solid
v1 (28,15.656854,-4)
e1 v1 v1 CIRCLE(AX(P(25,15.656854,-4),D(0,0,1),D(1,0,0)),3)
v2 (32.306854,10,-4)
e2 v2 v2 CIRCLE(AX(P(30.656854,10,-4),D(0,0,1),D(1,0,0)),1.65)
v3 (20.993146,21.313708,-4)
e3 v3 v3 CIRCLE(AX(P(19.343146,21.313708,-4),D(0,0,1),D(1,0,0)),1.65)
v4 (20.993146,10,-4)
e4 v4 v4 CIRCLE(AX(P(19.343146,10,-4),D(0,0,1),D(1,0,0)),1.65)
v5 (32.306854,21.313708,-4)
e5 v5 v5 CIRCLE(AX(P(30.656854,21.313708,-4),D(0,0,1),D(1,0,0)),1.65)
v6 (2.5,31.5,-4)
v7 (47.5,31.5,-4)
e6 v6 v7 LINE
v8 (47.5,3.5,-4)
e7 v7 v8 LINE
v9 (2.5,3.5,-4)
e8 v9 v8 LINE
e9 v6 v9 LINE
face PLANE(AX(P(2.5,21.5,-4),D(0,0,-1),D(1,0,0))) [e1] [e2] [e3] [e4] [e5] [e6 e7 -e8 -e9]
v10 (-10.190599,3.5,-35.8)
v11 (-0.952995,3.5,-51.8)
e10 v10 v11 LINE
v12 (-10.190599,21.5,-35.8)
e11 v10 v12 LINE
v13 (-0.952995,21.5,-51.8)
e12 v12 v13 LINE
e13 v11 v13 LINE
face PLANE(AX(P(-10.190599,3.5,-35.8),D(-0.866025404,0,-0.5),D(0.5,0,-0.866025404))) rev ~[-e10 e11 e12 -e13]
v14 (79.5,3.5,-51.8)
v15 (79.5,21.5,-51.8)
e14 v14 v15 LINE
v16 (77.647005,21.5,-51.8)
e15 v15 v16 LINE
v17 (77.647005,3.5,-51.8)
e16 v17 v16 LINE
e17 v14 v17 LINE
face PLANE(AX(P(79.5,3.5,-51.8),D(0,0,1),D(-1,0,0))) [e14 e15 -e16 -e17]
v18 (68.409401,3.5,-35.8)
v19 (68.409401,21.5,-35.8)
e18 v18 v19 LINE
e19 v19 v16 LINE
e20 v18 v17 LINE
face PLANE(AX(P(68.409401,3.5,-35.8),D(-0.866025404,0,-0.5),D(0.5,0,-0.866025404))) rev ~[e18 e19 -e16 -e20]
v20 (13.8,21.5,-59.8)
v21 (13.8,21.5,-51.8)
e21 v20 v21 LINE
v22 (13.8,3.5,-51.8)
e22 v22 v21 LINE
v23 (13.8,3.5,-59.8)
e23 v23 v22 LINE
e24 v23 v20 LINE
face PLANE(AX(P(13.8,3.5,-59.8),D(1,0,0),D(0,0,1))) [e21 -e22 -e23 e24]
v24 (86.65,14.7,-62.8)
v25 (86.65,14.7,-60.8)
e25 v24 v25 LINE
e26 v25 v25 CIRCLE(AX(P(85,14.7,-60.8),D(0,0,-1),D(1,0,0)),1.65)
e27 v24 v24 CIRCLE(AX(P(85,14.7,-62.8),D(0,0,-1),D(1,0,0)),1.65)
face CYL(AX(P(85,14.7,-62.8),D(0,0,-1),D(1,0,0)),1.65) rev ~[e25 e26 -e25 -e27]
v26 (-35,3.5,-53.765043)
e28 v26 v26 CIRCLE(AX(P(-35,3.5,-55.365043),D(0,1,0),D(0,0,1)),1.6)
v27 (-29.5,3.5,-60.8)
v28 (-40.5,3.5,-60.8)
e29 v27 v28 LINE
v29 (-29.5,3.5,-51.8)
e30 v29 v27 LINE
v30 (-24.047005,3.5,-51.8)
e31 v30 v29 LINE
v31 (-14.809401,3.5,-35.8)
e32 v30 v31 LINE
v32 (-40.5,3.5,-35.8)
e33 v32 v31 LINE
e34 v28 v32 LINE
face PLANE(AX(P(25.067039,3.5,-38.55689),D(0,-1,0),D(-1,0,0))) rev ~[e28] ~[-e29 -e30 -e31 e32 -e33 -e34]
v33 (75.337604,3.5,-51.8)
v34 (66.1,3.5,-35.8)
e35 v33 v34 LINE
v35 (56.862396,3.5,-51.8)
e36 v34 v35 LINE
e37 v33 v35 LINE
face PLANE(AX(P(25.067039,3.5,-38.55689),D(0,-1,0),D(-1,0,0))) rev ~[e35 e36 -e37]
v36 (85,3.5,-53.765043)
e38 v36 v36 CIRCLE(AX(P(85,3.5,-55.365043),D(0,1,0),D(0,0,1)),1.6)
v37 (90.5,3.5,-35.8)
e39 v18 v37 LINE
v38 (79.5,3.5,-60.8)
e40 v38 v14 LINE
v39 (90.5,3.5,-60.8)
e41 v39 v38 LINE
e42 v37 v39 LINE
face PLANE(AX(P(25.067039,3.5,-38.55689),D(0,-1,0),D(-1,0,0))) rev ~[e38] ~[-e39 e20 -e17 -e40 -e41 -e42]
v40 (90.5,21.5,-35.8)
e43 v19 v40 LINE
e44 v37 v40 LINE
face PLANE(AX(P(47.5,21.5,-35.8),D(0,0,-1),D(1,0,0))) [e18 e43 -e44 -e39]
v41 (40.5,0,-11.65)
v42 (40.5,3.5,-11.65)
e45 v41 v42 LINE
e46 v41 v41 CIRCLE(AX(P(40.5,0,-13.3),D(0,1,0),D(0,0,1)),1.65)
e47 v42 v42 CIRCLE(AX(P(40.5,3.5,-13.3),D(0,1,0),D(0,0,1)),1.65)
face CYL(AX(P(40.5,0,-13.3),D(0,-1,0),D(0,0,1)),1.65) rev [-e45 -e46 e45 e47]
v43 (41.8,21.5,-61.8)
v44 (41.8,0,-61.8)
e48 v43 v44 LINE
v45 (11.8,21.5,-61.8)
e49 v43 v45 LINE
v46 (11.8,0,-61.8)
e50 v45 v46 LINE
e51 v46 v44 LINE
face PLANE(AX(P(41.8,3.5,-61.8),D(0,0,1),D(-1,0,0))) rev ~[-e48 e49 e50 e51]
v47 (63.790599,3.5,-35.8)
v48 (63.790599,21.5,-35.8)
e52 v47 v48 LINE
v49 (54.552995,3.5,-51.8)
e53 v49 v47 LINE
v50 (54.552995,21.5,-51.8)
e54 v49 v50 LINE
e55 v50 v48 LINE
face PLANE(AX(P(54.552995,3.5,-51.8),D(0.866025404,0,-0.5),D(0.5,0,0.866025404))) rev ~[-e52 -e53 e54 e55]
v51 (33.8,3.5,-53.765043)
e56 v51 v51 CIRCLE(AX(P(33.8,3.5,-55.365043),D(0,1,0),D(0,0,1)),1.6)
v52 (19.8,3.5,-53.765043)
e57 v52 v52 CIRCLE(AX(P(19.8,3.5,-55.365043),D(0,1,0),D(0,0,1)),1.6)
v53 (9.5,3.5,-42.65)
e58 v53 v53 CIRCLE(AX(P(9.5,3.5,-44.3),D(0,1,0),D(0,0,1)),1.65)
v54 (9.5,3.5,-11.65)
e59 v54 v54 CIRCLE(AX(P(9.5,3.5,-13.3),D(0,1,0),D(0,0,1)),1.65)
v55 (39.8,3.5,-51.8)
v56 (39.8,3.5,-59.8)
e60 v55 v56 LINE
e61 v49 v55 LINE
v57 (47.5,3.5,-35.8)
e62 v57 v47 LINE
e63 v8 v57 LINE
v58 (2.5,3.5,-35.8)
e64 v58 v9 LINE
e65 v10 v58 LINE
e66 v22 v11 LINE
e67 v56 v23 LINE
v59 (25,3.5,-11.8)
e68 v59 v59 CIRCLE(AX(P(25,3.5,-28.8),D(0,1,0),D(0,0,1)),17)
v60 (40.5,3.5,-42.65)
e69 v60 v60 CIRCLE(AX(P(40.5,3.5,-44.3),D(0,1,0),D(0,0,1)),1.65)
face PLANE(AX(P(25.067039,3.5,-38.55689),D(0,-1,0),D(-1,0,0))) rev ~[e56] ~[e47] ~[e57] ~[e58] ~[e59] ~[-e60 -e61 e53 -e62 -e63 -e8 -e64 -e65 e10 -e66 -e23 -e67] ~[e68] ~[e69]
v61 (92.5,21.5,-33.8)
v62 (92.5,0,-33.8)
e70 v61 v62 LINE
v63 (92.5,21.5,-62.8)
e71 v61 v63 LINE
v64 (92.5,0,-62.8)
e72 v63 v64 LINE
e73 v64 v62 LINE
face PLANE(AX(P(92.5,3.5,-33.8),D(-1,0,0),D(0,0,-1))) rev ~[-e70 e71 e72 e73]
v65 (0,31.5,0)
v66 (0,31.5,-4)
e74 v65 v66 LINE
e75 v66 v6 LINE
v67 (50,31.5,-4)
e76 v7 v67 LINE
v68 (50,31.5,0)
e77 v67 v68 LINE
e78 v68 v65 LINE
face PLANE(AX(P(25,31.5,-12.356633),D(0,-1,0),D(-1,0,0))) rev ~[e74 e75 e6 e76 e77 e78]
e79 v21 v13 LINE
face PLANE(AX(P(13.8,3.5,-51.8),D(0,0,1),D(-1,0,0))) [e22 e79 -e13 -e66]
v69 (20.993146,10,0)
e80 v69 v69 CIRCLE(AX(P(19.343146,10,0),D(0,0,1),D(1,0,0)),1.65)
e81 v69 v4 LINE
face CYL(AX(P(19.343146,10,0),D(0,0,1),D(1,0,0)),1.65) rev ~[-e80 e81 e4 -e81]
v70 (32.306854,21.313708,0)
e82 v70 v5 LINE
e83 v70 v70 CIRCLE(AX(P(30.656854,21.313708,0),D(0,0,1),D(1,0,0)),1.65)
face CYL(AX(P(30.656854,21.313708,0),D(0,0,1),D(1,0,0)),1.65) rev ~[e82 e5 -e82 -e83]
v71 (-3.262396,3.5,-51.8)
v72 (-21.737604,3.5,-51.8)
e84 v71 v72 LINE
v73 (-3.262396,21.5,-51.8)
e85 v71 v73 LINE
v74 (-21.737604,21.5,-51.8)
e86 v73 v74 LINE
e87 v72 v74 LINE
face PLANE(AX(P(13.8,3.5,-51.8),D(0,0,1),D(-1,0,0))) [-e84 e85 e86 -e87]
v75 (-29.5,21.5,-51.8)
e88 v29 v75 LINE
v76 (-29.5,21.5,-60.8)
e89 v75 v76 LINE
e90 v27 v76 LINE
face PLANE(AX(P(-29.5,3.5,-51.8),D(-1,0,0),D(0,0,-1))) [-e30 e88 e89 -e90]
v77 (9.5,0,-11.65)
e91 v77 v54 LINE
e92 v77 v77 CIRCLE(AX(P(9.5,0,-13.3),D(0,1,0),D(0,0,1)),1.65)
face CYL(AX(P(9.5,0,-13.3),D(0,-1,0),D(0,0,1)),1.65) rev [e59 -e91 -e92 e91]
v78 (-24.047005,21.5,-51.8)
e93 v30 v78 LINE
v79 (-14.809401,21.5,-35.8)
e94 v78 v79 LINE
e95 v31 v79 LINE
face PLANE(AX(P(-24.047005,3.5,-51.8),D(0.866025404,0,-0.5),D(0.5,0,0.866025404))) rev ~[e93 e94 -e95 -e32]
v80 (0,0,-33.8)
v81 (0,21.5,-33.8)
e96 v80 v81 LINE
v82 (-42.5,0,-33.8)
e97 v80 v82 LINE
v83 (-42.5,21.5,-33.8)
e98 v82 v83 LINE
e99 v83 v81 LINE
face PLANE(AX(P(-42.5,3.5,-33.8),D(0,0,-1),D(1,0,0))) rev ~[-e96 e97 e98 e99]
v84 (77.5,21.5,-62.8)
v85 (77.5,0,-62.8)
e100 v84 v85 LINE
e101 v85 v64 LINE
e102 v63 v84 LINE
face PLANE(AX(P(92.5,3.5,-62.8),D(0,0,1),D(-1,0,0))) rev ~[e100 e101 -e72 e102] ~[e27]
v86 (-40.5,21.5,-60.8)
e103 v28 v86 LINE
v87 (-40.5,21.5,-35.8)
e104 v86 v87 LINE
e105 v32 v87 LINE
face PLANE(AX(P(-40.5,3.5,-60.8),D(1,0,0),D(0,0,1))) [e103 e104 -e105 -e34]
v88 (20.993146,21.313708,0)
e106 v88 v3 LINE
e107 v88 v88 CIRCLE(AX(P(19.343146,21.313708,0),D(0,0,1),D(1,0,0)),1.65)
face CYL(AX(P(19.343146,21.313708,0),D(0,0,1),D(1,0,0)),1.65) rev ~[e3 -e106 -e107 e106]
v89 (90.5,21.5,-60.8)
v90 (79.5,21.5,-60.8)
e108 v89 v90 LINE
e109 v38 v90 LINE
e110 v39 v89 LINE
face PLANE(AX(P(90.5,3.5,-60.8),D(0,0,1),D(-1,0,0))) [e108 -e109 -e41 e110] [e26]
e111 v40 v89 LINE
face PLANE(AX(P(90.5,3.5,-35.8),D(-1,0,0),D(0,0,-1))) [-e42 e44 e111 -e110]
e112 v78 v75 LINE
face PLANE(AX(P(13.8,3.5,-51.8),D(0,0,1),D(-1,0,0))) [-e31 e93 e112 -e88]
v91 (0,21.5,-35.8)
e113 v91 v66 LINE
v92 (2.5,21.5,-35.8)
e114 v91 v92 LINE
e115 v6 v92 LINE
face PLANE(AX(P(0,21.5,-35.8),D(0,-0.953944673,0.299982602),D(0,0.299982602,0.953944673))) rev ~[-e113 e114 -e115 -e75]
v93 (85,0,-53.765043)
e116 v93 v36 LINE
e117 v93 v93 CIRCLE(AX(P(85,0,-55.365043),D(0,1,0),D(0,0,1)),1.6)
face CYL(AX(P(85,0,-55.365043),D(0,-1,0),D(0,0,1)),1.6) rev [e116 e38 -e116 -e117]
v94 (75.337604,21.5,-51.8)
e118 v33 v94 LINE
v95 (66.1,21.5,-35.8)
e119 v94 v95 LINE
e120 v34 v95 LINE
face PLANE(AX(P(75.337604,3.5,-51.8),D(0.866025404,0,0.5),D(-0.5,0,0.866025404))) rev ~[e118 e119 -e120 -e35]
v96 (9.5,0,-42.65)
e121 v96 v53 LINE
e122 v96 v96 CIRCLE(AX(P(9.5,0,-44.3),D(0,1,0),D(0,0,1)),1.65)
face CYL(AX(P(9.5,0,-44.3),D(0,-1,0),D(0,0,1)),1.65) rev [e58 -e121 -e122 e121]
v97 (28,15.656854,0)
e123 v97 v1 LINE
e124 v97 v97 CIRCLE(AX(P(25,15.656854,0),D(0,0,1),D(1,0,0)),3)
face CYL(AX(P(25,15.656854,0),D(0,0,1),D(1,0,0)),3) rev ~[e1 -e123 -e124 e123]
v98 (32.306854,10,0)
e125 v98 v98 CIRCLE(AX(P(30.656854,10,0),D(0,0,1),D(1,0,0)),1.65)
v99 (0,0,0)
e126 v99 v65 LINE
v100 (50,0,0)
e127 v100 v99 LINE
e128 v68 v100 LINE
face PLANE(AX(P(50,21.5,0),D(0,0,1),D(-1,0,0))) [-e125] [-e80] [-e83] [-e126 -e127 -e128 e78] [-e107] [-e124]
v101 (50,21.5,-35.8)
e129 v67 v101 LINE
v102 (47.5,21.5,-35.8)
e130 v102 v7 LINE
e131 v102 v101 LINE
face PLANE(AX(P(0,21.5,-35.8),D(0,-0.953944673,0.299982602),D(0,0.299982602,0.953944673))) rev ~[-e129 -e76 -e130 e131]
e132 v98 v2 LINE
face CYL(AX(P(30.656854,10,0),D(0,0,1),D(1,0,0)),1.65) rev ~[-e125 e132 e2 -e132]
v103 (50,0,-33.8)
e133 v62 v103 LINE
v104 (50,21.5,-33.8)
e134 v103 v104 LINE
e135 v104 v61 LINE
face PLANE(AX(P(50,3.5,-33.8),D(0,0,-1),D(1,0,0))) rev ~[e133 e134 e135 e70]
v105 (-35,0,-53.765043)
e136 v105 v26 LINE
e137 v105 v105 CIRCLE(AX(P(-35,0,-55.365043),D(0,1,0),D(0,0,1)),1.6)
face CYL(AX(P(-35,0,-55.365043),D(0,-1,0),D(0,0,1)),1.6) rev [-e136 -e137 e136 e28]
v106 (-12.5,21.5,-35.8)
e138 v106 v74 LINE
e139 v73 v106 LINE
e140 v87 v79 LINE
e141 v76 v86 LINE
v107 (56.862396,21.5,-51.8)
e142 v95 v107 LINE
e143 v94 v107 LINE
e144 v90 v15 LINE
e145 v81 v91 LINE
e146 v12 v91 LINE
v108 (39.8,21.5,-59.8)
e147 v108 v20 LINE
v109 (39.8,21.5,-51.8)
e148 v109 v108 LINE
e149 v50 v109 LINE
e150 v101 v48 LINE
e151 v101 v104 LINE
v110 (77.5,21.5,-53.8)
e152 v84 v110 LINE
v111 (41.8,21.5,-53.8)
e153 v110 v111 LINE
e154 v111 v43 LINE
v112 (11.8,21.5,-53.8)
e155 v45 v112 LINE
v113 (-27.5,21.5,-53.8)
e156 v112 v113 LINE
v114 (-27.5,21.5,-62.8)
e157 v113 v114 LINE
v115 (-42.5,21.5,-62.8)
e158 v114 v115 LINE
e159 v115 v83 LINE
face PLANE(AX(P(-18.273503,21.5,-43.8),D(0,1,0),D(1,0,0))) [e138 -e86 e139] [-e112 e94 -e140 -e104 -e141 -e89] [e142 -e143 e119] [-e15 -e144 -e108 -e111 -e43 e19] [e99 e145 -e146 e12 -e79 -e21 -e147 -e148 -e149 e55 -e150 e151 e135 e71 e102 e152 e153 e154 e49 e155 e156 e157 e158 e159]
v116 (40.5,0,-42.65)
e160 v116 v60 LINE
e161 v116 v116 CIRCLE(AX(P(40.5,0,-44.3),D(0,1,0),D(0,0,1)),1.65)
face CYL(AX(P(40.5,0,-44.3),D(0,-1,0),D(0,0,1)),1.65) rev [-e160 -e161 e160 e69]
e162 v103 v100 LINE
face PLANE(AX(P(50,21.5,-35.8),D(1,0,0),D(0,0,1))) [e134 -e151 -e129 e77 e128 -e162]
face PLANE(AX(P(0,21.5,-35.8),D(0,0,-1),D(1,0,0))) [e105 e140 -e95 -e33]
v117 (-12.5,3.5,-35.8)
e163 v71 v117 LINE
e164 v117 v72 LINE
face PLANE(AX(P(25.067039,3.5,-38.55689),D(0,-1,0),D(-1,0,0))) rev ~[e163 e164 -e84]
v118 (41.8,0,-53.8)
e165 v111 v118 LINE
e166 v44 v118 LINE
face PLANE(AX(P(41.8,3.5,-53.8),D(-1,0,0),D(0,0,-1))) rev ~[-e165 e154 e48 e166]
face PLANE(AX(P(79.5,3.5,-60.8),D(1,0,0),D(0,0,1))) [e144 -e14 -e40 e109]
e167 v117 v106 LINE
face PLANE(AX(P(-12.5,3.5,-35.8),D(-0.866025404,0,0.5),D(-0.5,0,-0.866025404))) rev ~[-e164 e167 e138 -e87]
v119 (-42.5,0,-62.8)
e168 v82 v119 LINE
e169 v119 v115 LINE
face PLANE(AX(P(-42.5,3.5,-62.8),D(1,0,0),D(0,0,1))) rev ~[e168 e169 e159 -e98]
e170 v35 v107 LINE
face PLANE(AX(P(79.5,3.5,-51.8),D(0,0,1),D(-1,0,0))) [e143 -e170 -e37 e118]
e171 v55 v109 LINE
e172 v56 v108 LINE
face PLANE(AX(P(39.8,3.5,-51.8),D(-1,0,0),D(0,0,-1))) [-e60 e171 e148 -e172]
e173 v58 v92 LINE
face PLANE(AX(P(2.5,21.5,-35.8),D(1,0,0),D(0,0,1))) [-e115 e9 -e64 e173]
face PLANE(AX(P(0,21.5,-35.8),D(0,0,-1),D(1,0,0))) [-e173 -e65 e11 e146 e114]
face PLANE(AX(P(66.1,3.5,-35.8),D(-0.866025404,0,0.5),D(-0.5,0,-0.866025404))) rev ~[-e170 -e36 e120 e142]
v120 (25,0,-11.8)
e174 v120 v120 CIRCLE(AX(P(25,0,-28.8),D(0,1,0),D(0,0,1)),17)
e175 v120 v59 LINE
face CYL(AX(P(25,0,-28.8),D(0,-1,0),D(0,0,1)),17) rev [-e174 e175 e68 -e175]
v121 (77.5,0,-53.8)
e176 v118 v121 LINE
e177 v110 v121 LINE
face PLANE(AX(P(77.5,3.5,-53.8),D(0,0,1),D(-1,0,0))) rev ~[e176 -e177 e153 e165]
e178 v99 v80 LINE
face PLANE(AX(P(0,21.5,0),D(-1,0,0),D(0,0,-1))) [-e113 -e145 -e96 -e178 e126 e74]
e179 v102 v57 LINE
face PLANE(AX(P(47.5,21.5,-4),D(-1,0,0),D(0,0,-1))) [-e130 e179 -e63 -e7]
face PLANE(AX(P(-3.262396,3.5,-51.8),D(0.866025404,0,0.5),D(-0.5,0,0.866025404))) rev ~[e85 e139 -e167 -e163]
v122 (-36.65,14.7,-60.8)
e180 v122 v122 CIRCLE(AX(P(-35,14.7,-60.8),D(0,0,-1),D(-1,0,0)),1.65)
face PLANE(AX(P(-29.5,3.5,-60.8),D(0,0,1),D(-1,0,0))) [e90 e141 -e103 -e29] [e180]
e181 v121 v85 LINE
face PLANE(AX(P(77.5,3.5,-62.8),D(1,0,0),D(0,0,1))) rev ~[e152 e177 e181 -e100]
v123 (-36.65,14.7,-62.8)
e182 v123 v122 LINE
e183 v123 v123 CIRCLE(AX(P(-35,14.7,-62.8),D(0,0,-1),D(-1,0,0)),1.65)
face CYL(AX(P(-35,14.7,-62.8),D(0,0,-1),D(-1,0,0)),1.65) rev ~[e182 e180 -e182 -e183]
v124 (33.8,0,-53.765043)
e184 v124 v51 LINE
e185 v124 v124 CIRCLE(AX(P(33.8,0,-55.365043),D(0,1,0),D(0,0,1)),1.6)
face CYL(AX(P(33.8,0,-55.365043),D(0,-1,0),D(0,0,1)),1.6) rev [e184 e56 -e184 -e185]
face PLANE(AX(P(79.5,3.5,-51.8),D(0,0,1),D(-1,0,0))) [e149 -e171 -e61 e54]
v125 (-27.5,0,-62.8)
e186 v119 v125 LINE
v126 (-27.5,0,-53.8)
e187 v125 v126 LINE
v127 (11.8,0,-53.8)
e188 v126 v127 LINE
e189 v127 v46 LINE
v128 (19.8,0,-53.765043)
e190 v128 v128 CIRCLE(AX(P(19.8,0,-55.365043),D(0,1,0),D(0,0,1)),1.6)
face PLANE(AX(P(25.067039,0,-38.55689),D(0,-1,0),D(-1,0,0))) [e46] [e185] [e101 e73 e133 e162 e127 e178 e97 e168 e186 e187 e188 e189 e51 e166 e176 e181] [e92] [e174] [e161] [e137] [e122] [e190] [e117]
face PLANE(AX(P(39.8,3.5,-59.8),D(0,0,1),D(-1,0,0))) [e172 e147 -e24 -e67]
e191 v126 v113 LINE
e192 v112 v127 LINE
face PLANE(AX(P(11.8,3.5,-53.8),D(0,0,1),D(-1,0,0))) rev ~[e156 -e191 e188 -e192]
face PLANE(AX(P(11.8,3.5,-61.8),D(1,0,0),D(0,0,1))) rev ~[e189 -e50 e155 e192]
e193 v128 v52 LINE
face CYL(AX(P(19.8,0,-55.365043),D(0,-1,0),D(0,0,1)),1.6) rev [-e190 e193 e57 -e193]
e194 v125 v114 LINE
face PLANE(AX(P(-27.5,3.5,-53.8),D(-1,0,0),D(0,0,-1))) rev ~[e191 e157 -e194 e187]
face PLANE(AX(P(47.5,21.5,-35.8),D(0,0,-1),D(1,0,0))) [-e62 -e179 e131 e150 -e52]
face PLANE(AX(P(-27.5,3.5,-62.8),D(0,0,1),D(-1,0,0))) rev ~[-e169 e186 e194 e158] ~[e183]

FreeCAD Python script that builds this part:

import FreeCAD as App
import Part
import Sketcher
from FreeCAD import Vector
Q = App.Units.Quantity

doc = App.newDocument("Part")
body = doc.addObject("PartDesign::Body", "Body")

# Sketch on XZ plane
sketch1 = body.newObject("Sketcher::SketchObject", "Sketch")
sketch1.AttachmentSupport = (doc.getObject("XZ_Plane"), [""])
sketch1.MapMode = "FlatFace"
sketch1.addGeometry([
    Part.LineSegment(Vector(-42.5, -62.8, 0), Vector(-42.5, -33.8, 0)),  # 0
    Part.LineSegment(Vector(-42.5, -33.8, 0), Vector(0, -33.8, 0)),  # 1
    Part.LineSegment(Vector(0, -33.8, 0), Vector(0, 0, 0)),  # 2
    Part.LineSegment(Vector(0, 0, 0), Vector(50, 0, 0)),  # 3
    Part.LineSegment(Vector(50, 0, 0), Vector(50, -33.8, 0)),  # 4
    Part.LineSegment(Vector(50, -33.8, 0), Vector(92.5, -33.8, 0)),  # 5
    Part.LineSegment(Vector(92.5, -33.8, 0), Vector(92.5, -62.8, 0)),  # 6
    Part.LineSegment(Vector(92.5, -62.8, 0), Vector(77.5, -62.8, 0)),  # 7
    Part.LineSegment(Vector(77.5, -62.8, 0), Vector(77.5, -53.8, 0)),  # 8
    Part.LineSegment(Vector(77.5, -53.8, 0), Vector(41.8, -53.8, 0)),  # 9
    Part.LineSegment(Vector(41.8, -53.8, 0), Vector(41.8, -61.8, 0)),  # 10
    Part.LineSegment(Vector(41.8, -61.8, 0), Vector(11.8, -61.8, 0)),  # 11
    Part.LineSegment(Vector(11.8, -61.8, 0), Vector(11.8, -53.8, 0)),  # 12
    Part.LineSegment(Vector(11.8, -53.8, 0), Vector(-27.5, -53.8, 0)),  # 13
    Part.LineSegment(Vector(-27.5, -53.8, 0), Vector(-27.5, -62.8, 0)),  # 14
    Part.LineSegment(Vector(-27.5, -62.8, 0), Vector(-42.5, -62.8, 0)),  # 15
    Part.Circle(Vector(40.5, -13.3, 0), Vector(0, 0, 1), 1.65),  # 16
    Part.Circle(Vector(25, -28.8, 0), Vector(0, 0, 1), 17),  # 17
    Part.Circle(Vector(9.5, -13.3, 0), Vector(0, 0, 1), 1.65),  # 18
    Part.Circle(Vector(40.5, -44.3, 0), Vector(0, 0, 1), 1.65),  # 19
    Part.Circle(Vector(85, -55.365043, 0), Vector(0, 0, 1), 1.6),  # 20
    Part.Circle(Vector(33.8, -55.365043, 0), Vector(0, 0, 1), 1.6),  # 21
    Part.Circle(Vector(9.5, -44.3, 0), Vector(0, 0, 1), 1.65),  # 22
    Part.Circle(Vector(19.8, -55.365043, 0), Vector(0, 0, 1), 1.6),  # 23
    Part.Circle(Vector(-35, -55.365043, 0), Vector(0, 0, 1), 1.6),  # 24
], False)
sketch1.addConstraint([
    Sketcher.Constraint("Coincident", 0, 2, 1, 1),
    Sketcher.Constraint("Coincident", 1, 2, 2, 1),
    Sketcher.Constraint("Coincident", 2, 2, 3, 1),
    Sketcher.Constraint("Coincident", 3, 2, 4, 1),
    Sketcher.Constraint("Coincident", 4, 2, 5, 1),
    Sketcher.Constraint("Coincident", 5, 2, 6, 1),
    Sketcher.Constraint("Coincident", 6, 2, 7, 1),
    Sketcher.Constraint("Coincident", 7, 2, 8, 1),
    Sketcher.Constraint("Coincident", 8, 2, 9, 1),
    Sketcher.Constraint("Coincident", 9, 2, 10, 1),
    Sketcher.Constraint("Coincident", 10, 2, 11, 1),
    Sketcher.Constraint("Coincident", 11, 2, 12, 1),
    Sketcher.Constraint("Coincident", 12, 2, 13, 1),
    Sketcher.Constraint("Coincident", 13, 2, 14, 1),
    Sketcher.Constraint("Coincident", 14, 2, 15, 1),
    Sketcher.Constraint("Coincident", 15, 2, 0, 1),
    Sketcher.Constraint("Vertical", 0),
    Sketcher.Constraint("Horizontal", 1),
    Sketcher.Constraint("Vertical", 2),
    Sketcher.Constraint("Horizontal", 3),
    Sketcher.Constraint("Vertical", 4),
    Sketcher.Constraint("Horizontal", 5),
    Sketcher.Constraint("Vertical", 6),
    Sketcher.Constraint("Horizontal", 7),
    Sketcher.Constraint("Vertical", 8),
    Sketcher.Constraint("Horizontal", 9),
    Sketcher.Constraint("Vertical", 10),
    Sketcher.Constraint("Horizontal", 11),
    Sketcher.Constraint("Vertical", 12),
    Sketcher.Constraint("Horizontal", 13),
    Sketcher.Constraint("Vertical", 14),
    Sketcher.Constraint("Horizontal", 15),
    Sketcher.Constraint("Coincident", 2, 2, -1, 1),
    Sketcher.Constraint("Equal", 16, 18),
    Sketcher.Constraint("Equal", 18, 19),
    Sketcher.Constraint("Equal", 20, 21),
    Sketcher.Constraint("Equal", 19, 22),
    Sketcher.Constraint("Equal", 21, 23),
    Sketcher.Constraint("Equal", 23, 24),
    Sketcher.Constraint("Horizontal", 16, 3, 18, 3),
    Sketcher.Constraint("Horizontal", 20, 3, 21, 3),
    Sketcher.Constraint("Horizontal", 19, 3, 22, 3),
    Sketcher.Constraint("Horizontal", 21, 3, 23, 3),
    Sketcher.Constraint("Horizontal", 23, 3, 24, 3),
    Sketcher.Constraint("Horizontal", 1, 2, 4, 2),
    Sketcher.Constraint("Horizontal", 9, 2, 12, 2),
    Sketcher.Constraint("Horizontal", 7, 2, 14, 2),
    Sketcher.Constraint("Vertical", 16, 3, 19, 3),
    Sketcher.Constraint("Vertical", 18, 3, 22, 3),
    Sketcher.Constraint("Equal", 1, 5),
    Sketcher.Constraint("Equal", 7, 15),
    Sketcher.Constraint("Diameter", 17, Q("34 mm")),
    Sketcher.Constraint("Diameter", 16, Q("3.3 mm")),
    Sketcher.Constraint("Diameter", 20, Q("3.2 mm")),
    Sketcher.Constraint("DistanceX", 3, 1, 3, 2, Q("50 mm")),
    Sketcher.Constraint("DistanceX", 7, 2, 7, 1, Q("15 mm")),
    Sketcher.Constraint("DistanceX", 11, 2, 11, 1, Q("30 mm")),
    Sketcher.Constraint("DistanceY", 0, 1, 0, 2, Q("29 mm")),
    Sketcher.Constraint("DistanceY", 8, 1, 8, 2, Q("9 mm")),
    Sketcher.Constraint("DistanceY", 10, 2, 10, 1, Q("8 mm")),
    Sketcher.Constraint("DistanceX", 1, 1, 1, 2, Q("42.5 mm")),
    Sketcher.Constraint("DistanceX", 9, 2, 9, 1, Q("35.7 mm")),
    Sketcher.Constraint("DistanceY", 2, 1, 2, 2, Q("33.8 mm")),
    Sketcher.Constraint("DistanceX", -1, 1, 17, 3, Q("25 mm")),
    Sketcher.Constraint("DistanceX", -1, 1, 20, 3, Q("85 mm")),
    Sketcher.Constraint("DistanceX", 24, 3, -1, 1, Q("35 mm")),
    Sketcher.Constraint("DistanceX", 18, 3, 16, 3, Q("31 mm")),
    Sketcher.Constraint("DistanceY", 19, 3, 16, 3, Q("31 mm")),
    Sketcher.Constraint("DistanceX", 23, 3, 21, 3, Q("14 mm")),
    Sketcher.Constraint("DistanceX", 0, 2, 22, 3, Q("52 mm")),
    Sketcher.Constraint("DistanceY", 0, 2, 17, 3, Q("5 mm")),
    Sketcher.Constraint("DistanceX", 21, 3, 9, 2, Q("8 mm")),
    Sketcher.Constraint("DistanceY", 16, 3, -1, 1, Q("13.3 mm")),
    Sketcher.Constraint("DistanceY", 20, 3, -1, 1, Q("55.365043 mm")),
])
pad1 = body.newObject("PartDesign::Pad", "Pad")
pad1.Profile = sketch1
pad1.Length = 3.5
pad1.Reversed = True

# Sketch on XZ plane
sketch2 = body.newObject("Sketcher::SketchObject", "Sketch001")
sketch2.AttachmentSupport = (doc.getObject("XZ_Plane"), [""])
sketch2.MapMode = "FlatFace"
sketch2.AttachmentOffset = App.Placement(Vector(0, 0, -3.5), App.Rotation())
sketch2.addGeometry([
    Part.LineSegment(Vector(11.8, -53.8, 0), Vector(-27.5, -53.8, 0)),  # 0
    Part.LineSegment(Vector(-27.5, -53.8, 0), Vector(-27.5, -62.8, 0)),  # 1
    Part.LineSegment(Vector(-27.5, -62.8, 0), Vector(-42.5, -62.8, 0)),  # 2
    Part.LineSegment(Vector(-42.5, -62.8, 0), Vector(-42.5, -33.8, 0)),  # 3
    Part.LineSegment(Vector(-42.5, -33.8, 0), Vector(0, -33.8, 0)),  # 4
    Part.LineSegment(Vector(0, -33.8, 0), Vector(0, 0, 0)),  # 5
    Part.LineSegment(Vector(0, 0, 0), Vector(50, 0, 0)),  # 6
    Part.LineSegment(Vector(50, 0, 0), Vector(50, -33.8, 0)),  # 7
    Part.LineSegment(Vector(50, -33.8, 0), Vector(92.5, -33.8, 0)),  # 8
    Part.LineSegment(Vector(92.5, -33.8, 0), Vector(92.5, -62.8, 0)),  # 9
    Part.LineSegment(Vector(92.5, -62.8, 0), Vector(77.5, -62.8, 0)),  # 10
    Part.LineSegment(Vector(77.5, -62.8, 0), Vector(77.5, -53.8, 0)),  # 11
    Part.LineSegment(Vector(77.5, -53.8, 0), Vector(41.8, -53.8, 0)),  # 12
    Part.LineSegment(Vector(41.8, -53.8, 0), Vector(41.8, -61.8, 0)),  # 13
    Part.LineSegment(Vector(41.8, -61.8, 0), Vector(11.8, -61.8, 0)),  # 14
    Part.LineSegment(Vector(11.8, -61.8, 0), Vector(11.8, -53.8, 0)),  # 15
    Part.LineSegment(Vector(-29.5, -51.8, 0), Vector(13.8, -51.8, 0)),  # 16
    Part.LineSegment(Vector(13.8, -51.8, 0), Vector(13.8, -59.8, 0)),  # 17
    Part.LineSegment(Vector(13.8, -59.8, 0), Vector(39.8, -59.8, 0)),  # 18
    Part.LineSegment(Vector(39.8, -59.8, 0), Vector(39.8, -51.8, 0)),  # 19
    Part.LineSegment(Vector(39.8, -51.8, 0), Vector(79.5, -51.8, 0)),  # 20
    Part.LineSegment(Vector(79.5, -51.8, 0), Vector(79.5, -60.8, 0)),  # 21
    Part.LineSegment(Vector(79.5, -60.8, 0), Vector(90.5, -60.8, 0)),  # 22
    Part.LineSegment(Vector(90.5, -60.8, 0), Vector(90.5, -35.8, 0)),  # 23
    Part.LineSegment(Vector(90.5, -35.8, 0), Vector(47.5, -35.8, 0)),  # 24
    Part.LineSegment(Vector(47.5, -35.8, 0), Vector(47.5, -4, 0)),  # 25
    Part.LineSegment(Vector(47.5, -4, 0), Vector(2.5, -4, 0)),  # 26
    Part.LineSegment(Vector(2.5, -4, 0), Vector(2.5, -35.8, 0)),  # 27
    Part.LineSegment(Vector(2.5, -35.8, 0), Vector(-40.5, -35.8, 0)),  # 28
    Part.LineSegment(Vector(-40.5, -35.8, 0), Vector(-40.5, -60.8, 0)),  # 29
    Part.LineSegment(Vector(-40.5, -60.8, 0), Vector(-29.5, -60.8, 0)),  # 30
    Part.LineSegment(Vector(-29.5, -60.8, 0), Vector(-29.5, -51.8, 0)),  # 31
], False)
sketch2.addConstraint([
    Sketcher.Constraint("Coincident", 0, 2, 1, 1),
    Sketcher.Constraint("Coincident", 1, 2, 2, 1),
    Sketcher.Constraint("Coincident", 2, 2, 3, 1),
    Sketcher.Constraint("Coincident", 3, 2, 4, 1),
    Sketcher.Constraint("Coincident", 4, 2, 5, 1),
    Sketcher.Constraint("Coincident", 5, 2, 6, 1),
    Sketcher.Constraint("Coincident", 6, 2, 7, 1),
    Sketcher.Constraint("Coincident", 7, 2, 8, 1),
    Sketcher.Constraint("Coincident", 8, 2, 9, 1),
    Sketcher.Constraint("Coincident", 9, 2, 10, 1),
    Sketcher.Constraint("Coincident", 10, 2, 11, 1),
    Sketcher.Constraint("Coincident", 11, 2, 12, 1),
    Sketcher.Constraint("Coincident", 12, 2, 13, 1),
    Sketcher.Constraint("Coincident", 13, 2, 14, 1),
    Sketcher.Constraint("Coincident", 14, 2, 15, 1),
    Sketcher.Constraint("Coincident", 15, 2, 0, 1),
    Sketcher.Constraint("Coincident", 16, 2, 17, 1),
    Sketcher.Constraint("Coincident", 17, 2, 18, 1),
    Sketcher.Constraint("Coincident", 18, 2, 19, 1),
    Sketcher.Constraint("Coincident", 19, 2, 20, 1),
    Sketcher.Constraint("Coincident", 20, 2, 21, 1),
    Sketcher.Constraint("Coincident", 21, 2, 22, 1),
    Sketcher.Constraint("Coincident", 22, 2, 23, 1),
    Sketcher.Constraint("Coincident", 23, 2, 24, 1),
    Sketcher.Constraint("Coincident", 24, 2, 25, 1),
    Sketcher.Constraint("Coincident", 25, 2, 26, 1),
    Sketcher.Constraint("Coincident", 26, 2, 27, 1),
    Sketcher.Constraint("Coincident", 27, 2, 28, 1),
    Sketcher.Constraint("Coincident", 28, 2, 29, 1),
    Sketcher.Constraint("Coincident", 29, 2, 30, 1),
    Sketcher.Constraint("Coincident", 30, 2, 31, 1),
    Sketcher.Constraint("Coincident", 31, 2, 16, 1),
    Sketcher.Constraint("Horizontal", 0),
    Sketcher.Constraint("Vertical", 1),
    Sketcher.Constraint("Horizontal", 2),
    Sketcher.Constraint("Vertical", 3),
    Sketcher.Constraint("Horizontal", 4),
    Sketcher.Constraint("Vertical", 5),
    Sketcher.Constraint("Horizontal", 6),
    Sketcher.Constraint("Vertical", 7),
    Sketcher.Constraint("Horizontal", 8),
    Sketcher.Constraint("Vertical", 9),
    Sketcher.Constraint("Horizontal", 10),
    Sketcher.Constraint("Vertical", 11),
    Sketcher.Constraint("Horizontal", 12),
    Sketcher.Constraint("Vertical", 13),
    Sketcher.Constraint("Horizontal", 14),
    Sketcher.Constraint("Vertical", 15),
    Sketcher.Constraint("Horizontal", 16),
    Sketcher.Constraint("Vertical", 17),
    Sketcher.Constraint("Horizontal", 18),
    Sketcher.Constraint("Vertical", 19),
    Sketcher.Constraint("Horizontal", 20),
    Sketcher.Constraint("Vertical", 21),
    Sketcher.Constraint("Horizontal", 22),
    Sketcher.Constraint("Vertical", 23),
    Sketcher.Constraint("Horizontal", 24),
    Sketcher.Constraint("Vertical", 25),
    Sketcher.Constraint("Horizontal", 26),
    Sketcher.Constraint("Vertical", 27),
    Sketcher.Constraint("Horizontal", 28),
    Sketcher.Constraint("Vertical", 29),
    Sketcher.Constraint("Horizontal", 30),
    Sketcher.Constraint("Vertical", 31),
    Sketcher.Constraint("Coincident", 5, 2, -1, 1),
    Sketcher.Constraint("Horizontal", 4, 2, 7, 2),
    Sketcher.Constraint("Horizontal", 2, 2, 9, 2),
    Sketcher.Constraint("Horizontal", 0, 2, 11, 2),
    Sketcher.Constraint("Horizontal", 16, 2, 19, 2),
    Sketcher.Constraint("Horizontal", 24, 2, 27, 2),
    Sketcher.Constraint("Horizontal", 22, 2, 29, 2),
    Sketcher.Constraint("Equal", 4, 8),
    Sketcher.Constraint("Equal", 2, 10),
    Sketcher.Constraint("Equal", 24, 28),
    Sketcher.Constraint("Equal", 22, 30),
    Sketcher.Constraint("Equal", 15, 17),
    Sketcher.Constraint("Equal", 11, 21),
    Sketcher.Constraint("DistanceX", 2, 2, 2, 1, Q("15 mm")),
    Sketcher.Constraint("DistanceX", 6, 1, 6, 2, Q("50 mm")),
    Sketcher.Constraint("DistanceX", 14, 2, 14, 1, Q("30 mm")),
    Sketcher.Constraint("DistanceX", 18, 1, 18, 2, Q("26 mm")),
    Sketcher.Constraint("DistanceX", 22, 1, 22, 2, Q("11 mm")),
    Sketcher.Constraint("DistanceX", 24, 2, 24, 1, Q("43 mm")),
    Sketcher.Constraint("DistanceX", 26, 2, 26, 1, Q("45 mm")),
    Sketcher.Constraint("DistanceY", 1, 2, 1, 1, Q("9 mm")),
    Sketcher.Constraint("DistanceY", 3, 1, 3, 2, Q("29 mm")),
    Sketcher.Constraint("DistanceY", 13, 2, 13, 1, Q("8 mm")),
    Sketcher.Constraint("DistanceY", 23, 1, 23, 2, Q("25 mm")),
    Sketcher.Constraint("DistanceX", 0, 2, 0, 1, Q("39.3 mm")),
    Sketcher.Constraint("DistanceX", 4, 1, 4, 2, Q("42.5 mm")),
    Sketcher.Constraint("DistanceX", 16, 1, 16, 2, Q("43.3 mm")),
    Sketcher.Constraint("DistanceY", 5, 1, 5, 2, Q("33.8 mm")),
    Sketcher.Constraint("DistanceY", 25, 1, 25, 2, Q("31.8 mm")),
    Sketcher.Constraint("DistanceY", 25, 2, -1, 1, Q("4 mm")),
    Sketcher.Constraint("DistanceX", 15, 2, 16, 2, Q("2 mm")),
])
pad2 = body.newObject("PartDesign::Pad", "Pad001")
pad2.Profile = sketch2
pad2.Length = 18
pad2.Reversed = True

# Sketch on XZ plane
sketch3 = body.newObject("Sketcher::SketchObject", "Sketch002")
sketch3.AttachmentSupport = (doc.getObject("XZ_Plane"), [""])
sketch3.MapMode = "FlatFace"
sketch3.AttachmentOffset = App.Placement(Vector(0, 0, -21.5), App.Rotation())
sketch3.addGeometry([
    Part.LineSegment(Vector(2.5, -4, 0), Vector(2.5, -35.8, 0)),  # 0
    Part.LineSegment(Vector(2.5, -35.8, 0), Vector(0, -35.8, 0)),  # 1
    Part.LineSegment(Vector(0, -35.8, 0), Vector(0, 0, 0)),  # 2
    Part.LineSegment(Vector(0, 0, 0), Vector(50, 0, 0)),  # 3
    Part.LineSegment(Vector(50, 0, 0), Vector(50, -35.8, 0)),  # 4
    Part.LineSegment(Vector(50, -35.8, 0), Vector(47.5, -35.8, 0)),  # 5
    Part.LineSegment(Vector(47.5, -35.8, 0), Vector(47.5, -4, 0)),  # 6
    Part.LineSegment(Vector(47.5, -4, 0), Vector(2.5, -4, 0)),  # 7
], False)
sketch3.addConstraint([
    Sketcher.Constraint("Coincident", 0, 2, 1, 1),
    Sketcher.Constraint("Coincident", 1, 2, 2, 1),
    Sketcher.Constraint("Coincident", 2, 2, 3, 1),
    Sketcher.Constraint("Coincident", 3, 2, 4, 1),
    Sketcher.Constraint("Coincident", 4, 2, 5, 1),
    Sketcher.Constraint("Coincident", 5, 2, 6, 1),
    Sketcher.Constraint("Coincident", 6, 2, 7, 1),
    Sketcher.Constraint("Coincident", 7, 2, 0, 1),
    Sketcher.Constraint("Vertical", 0),
    Sketcher.Constraint("Horizontal", 1),
    Sketcher.Constraint("Vertical", 2),
    Sketcher.Constraint("Horizontal", 3),
    Sketcher.Constraint("Vertical", 4),
    Sketcher.Constraint("Horizontal", 5),
    Sketcher.Constraint("Vertical", 6),
    Sketcher.Constraint("Horizontal", 7),
    Sketcher.Constraint("Coincident", 2, 2, -1, 1),
    Sketcher.Constraint("Horizontal", 1, 2, 4, 2),
    Sketcher.Constraint("Equal", 1, 5),
    Sketcher.Constraint("DistanceX", 3, 1, 3, 2, Q("50 mm")),
    Sketcher.Constraint("DistanceX", 7, 2, 7, 1, Q("45 mm")),
    Sketcher.Constraint("DistanceY", 0, 2, 0, 1, Q("31.8 mm")),
    Sketcher.Constraint("DistanceY", 2, 1, 2, 2, Q("35.8 mm")),
])
pad3 = body.newObject("PartDesign::Pad", "Pad002")
pad3.Profile = sketch3
pad3.Length = 10
pad3.Reversed = True

# Sketch on YZ plane
sketch4 = body.newObject("Sketcher::SketchObject", "Sketch003")
sketch4.AttachmentSupport = (doc.getObject("YZ_Plane"), [""])
sketch4.MapMode = "FlatFace"
sketch4.addGeometry([
    Part.LineSegment(Vector(21.5, -35.8, 0), Vector(31.5, -4, 0)),
    Part.LineSegment(Vector(31.5, -4, 0), Vector(31.5, -35.8, 0)),
    Part.LineSegment(Vector(31.5, -35.8, 0), Vector(21.5, -35.8, 0)),
], False)
sketch4.addConstraint([
    Sketcher.Constraint("Coincident", 0, 2, 1, 1),
    Sketcher.Constraint("Coincident", 1, 2, 2, 1),
    Sketcher.Constraint("Coincident", 2, 2, 0, 1),
    Sketcher.Constraint("Vertical", 1),
    Sketcher.Constraint("Horizontal", 2),
    Sketcher.Constraint("DistanceX", 2, 2, 2, 1, Q("10 mm")),
    Sketcher.Constraint("DistanceY", 1, 2, 1, 1, Q("31.8 mm")),
    Sketcher.Constraint("DistanceY", 0, 2, -1, 1, Q("4 mm")),
    Sketcher.Constraint("DistanceX", -1, 1, 0, 2, Q("31.5 mm")),
])
pocket1 = body.newObject("PartDesign::Pocket", "Pocket")
pocket1.Profile = sketch4
pocket1.Type = "ThroughAll"
pocket1.Reversed = True

# Sketch on XY plane
sketch5 = body.newObject("Sketcher::SketchObject", "Sketch004")
sketch5.AttachmentSupport = (doc.getObject("XY_Plane"), [""])
sketch5.MapMode = "FlatFace"
sketch5.addGeometry([
    Part.Circle(Vector(25, 15.656854, 0), Vector(0, 0, 1), 3),  # 0
    Part.Circle(Vector(30.656854, 21.313708, 0), Vector(0, 0, 1), 1.65),  # 1
    Part.Circle(Vector(30.656854, 10, 0), Vector(0, 0, 1), 1.65),  # 2
    Part.Circle(Vector(19.343146, 10, 0), Vector(0, 0, 1), 1.65),  # 3
    Part.Circle(Vector(19.343146, 21.313708, 0), Vector(0, 0, 1), 1.65),  # 4
], False)
sketch5.addConstraint([
    Sketcher.Constraint("Equal", 1, 2),
    Sketcher.Constraint("Equal", 2, 3),
    Sketcher.Constraint("Equal", 3, 4),
    Sketcher.Constraint("Horizontal", 2, 3, 3, 3),
    Sketcher.Constraint("Horizontal", 1, 3, 4, 3),
    Sketcher.Constraint("Vertical", 1, 3, 2, 3),
    Sketcher.Constraint("Vertical", 3, 3, 4, 3),
    Sketcher.Constraint("Diameter", 0, Q("6 mm")),
    Sketcher.Constraint("Diameter", 1, Q("3.3 mm")),
    Sketcher.Constraint("DistanceX", -1, 1, 0, 3, Q("25 mm")),
    Sketcher.Constraint("DistanceY", -1, 1, 2, 3, Q("10 mm")),
    Sketcher.Constraint("DistanceY", -1, 1, 1, 3, Q("21.313708 mm")),
    Sketcher.Constraint("DistanceX", 3, 3, 2, 3, Q("11.313708 mm")),
    Sketcher.Constraint("DistanceY", -1, 1, 0, 3, Q("15.656854 mm")),
    Sketcher.Constraint("DistanceX", -1, 1, 1, 3, Q("30.656854 mm")),
])
pocket2 = body.newObject("PartDesign::Pocket", "Pocket001")
pocket2.Profile = sketch5
pocket2.Length = 5

# Sketch on XZ plane
sketch6 = body.newObject("Sketcher::SketchObject", "Sketch005")
sketch6.AttachmentSupport = (doc.getObject("XZ_Plane"), [""])
sketch6.MapMode = "FlatFace"
sketch6.AttachmentOffset = App.Placement(Vector(0, 0, -3.5), App.Rotation())
sketch6.addGeometry([
    Part.LineSegment(Vector(-12.5, -35.8, 0), Vector(-21.737604, -51.8, 0)),  # 0
    Part.LineSegment(Vector(-21.737604, -51.8, 0), Vector(-24.047005, -51.8, 0)),  # 1
    Part.LineSegment(Vector(-24.047005, -51.8, 0), Vector(-14.809401, -35.8, 0)),  # 2
    Part.LineSegment(Vector(-14.809401, -35.8, 0), Vector(-12.5, -35.8, 0)),  # 3
    Part.LineSegment(Vector(-3.262396, -51.8, 0), Vector(-12.5, -35.8, 0)),  # 4
    Part.LineSegment(Vector(-12.5, -35.8, 0), Vector(-10.190599, -35.8, 0)),  # 5
    Part.LineSegment(Vector(-10.190599, -35.8, 0), Vector(-0.952995, -51.8, 0)),  # 6
    Part.LineSegment(Vector(-0.952995, -51.8, 0), Vector(-3.262396, -51.8, 0)),  # 7
    Part.LineSegment(Vector(54.552995, -51.8, 0), Vector(63.790599, -35.8, 0)),  # 8
    Part.LineSegment(Vector(63.790599, -35.8, 0), Vector(66.1, -35.8, 0)),  # 9
    Part.LineSegment(Vector(66.1, -35.8, 0), Vector(56.862396, -51.8, 0)),  # 10
    Part.LineSegment(Vector(56.862396, -51.8, 0), Vector(54.552995, -51.8, 0)),  # 11
    Part.LineSegment(Vector(75.337604, -51.8, 0), Vector(66.1, -35.8, 0)),  # 12
    Part.LineSegment(Vector(66.1, -35.8, 0), Vector(68.409401, -35.8, 0)),  # 13
    Part.LineSegment(Vector(68.409401, -35.8, 0), Vector(77.647005, -51.8, 0)),  # 14
    Part.LineSegment(Vector(77.647005, -51.8, 0), Vector(75.337604, -51.8, 0)),  # 15
], False)
sketch6.addConstraint([
    Sketcher.Constraint("Coincident", 0, 2, 1, 1),
    Sketcher.Constraint("Coincident", 1, 2, 2, 1),
    Sketcher.Constraint("Coincident", 2, 2, 3, 1),
    Sketcher.Constraint("Coincident", 3, 2, 0, 1),
    Sketcher.Constraint("Coincident", 4, 2, 5, 1),
    Sketcher.Constraint("Coincident", 5, 2, 6, 1),
    Sketcher.Constraint("Coincident", 6, 2, 7, 1),
    Sketcher.Constraint("Coincident", 7, 2, 4, 1),
    Sketcher.Constraint("Coincident", 8, 2, 9, 1),
    Sketcher.Constraint("Coincident", 9, 2, 10, 1),
    Sketcher.Constraint("Coincident", 10, 2, 11, 1),
    Sketcher.Constraint("Coincident", 11, 2, 8, 1),
    Sketcher.Constraint("Coincident", 12, 2, 13, 1),
    Sketcher.Constraint("Coincident", 13, 2, 14, 1),
    Sketcher.Constraint("Coincident", 14, 2, 15, 1),
    Sketcher.Constraint("Coincident", 15, 2, 12, 1),
    Sketcher.Constraint("Horizontal", 1),
    Sketcher.Constraint("Horizontal", 3),
    Sketcher.Constraint("Horizontal", 5),
    Sketcher.Constraint("Horizontal", 7),
    Sketcher.Constraint("Horizontal", 9),
    Sketcher.Constraint("Horizontal", 11),
    Sketcher.Constraint("Horizontal", 13),
    Sketcher.Constraint("Horizontal", 15),
    Sketcher.Constraint("Coincident", 4, 2, 3, 2),
    Sketcher.Constraint("Coincident", 12, 2, 9, 2),
    Sketcher.Constraint("Parallel", 0, 2),
    Sketcher.Constraint("Parallel", 4, 6),
    Sketcher.Constraint("Parallel", 2, 8),
    Sketcher.Constraint("Parallel", 8, 10),
    Sketcher.Constraint("Parallel", 6, 12),
    Sketcher.Constraint("Parallel", 12, 14),
    Sketcher.Constraint("Horizontal", 1, 2, 6, 2),
    Sketcher.Constraint("Horizontal", 5, 2, 8, 2),
    Sketcher.Constraint("Horizontal", 7, 2, 10, 2),
    Sketcher.Constraint("Horizontal", 11, 2, 14, 2),
    Sketcher.Constraint("Equal", 3, 5),
    Sketcher.Constraint("Equal", 7, 9),
    Sketcher.Constraint("Equal", 11, 13),
    Sketcher.Constraint("Equal", 2, 4),
    Sketcher.Constraint("Angle", 0, Q("-120 deg")),
    Sketcher.Constraint("DistanceY", 0, 2, 2, 2, Q("16 mm")),
    Sketcher.Constraint("DistanceY", 0, 2, -1, 1, Q("51.8 mm")),
    Sketcher.Constraint("DistanceX", 3, 2, -1, 1, Q("12.5 mm")),
    Sketcher.Constraint("DistanceX", -1, 1, 9, 2, Q("66.1 mm")),
    Sketcher.Constraint("DistanceX", 1, 2, 1, 1, Q("2.309401 mm")),
])
pad4 = body.newObject("PartDesign::Pad", "Pad003")
pad4.Profile = sketch6
pad4.Length = 18
pad4.Reversed = True

# Sketch on XY plane
sketch7 = body.newObject("Sketcher::SketchObject", "Sketch006")
sketch7.AttachmentSupport = (doc.getObject("XY_Plane"), [""])
sketch7.MapMode = "FlatFace"
sketch7.AttachmentOffset = App.Placement(Vector(0, 0, -62.8), App.Rotation())
sketch7.addGeometry([
    Part.Circle(Vector(-35, 14.7, 0), Vector(0, 0, 1), 1.65),
    Part.Circle(Vector(85, 14.7, 0), Vector(0, 0, 1), 1.65),
], False)
sketch7.addConstraint([
    Sketcher.Constraint("Equal", 0, 1),
    Sketcher.Constraint("Horizontal", 0, 3, 1, 3),
    Sketcher.Constraint("Diameter", 0, Q("3.3 mm")),
    Sketcher.Constraint("DistanceX", 0, 3, -1, 1, Q("35 mm")),
    Sketcher.Constraint("DistanceX", -1, 1, 1, 3, Q("85 mm")),
    Sketcher.Constraint("DistanceY", -1, 1, 0, 3, Q("14.7 mm")),
])
pocket3 = body.newObject("PartDesign::Pocket", "Pocket002")
pocket3.Profile = sketch7
pocket3.Length = 10
pocket3.Reversed = True

doc.recompute()
